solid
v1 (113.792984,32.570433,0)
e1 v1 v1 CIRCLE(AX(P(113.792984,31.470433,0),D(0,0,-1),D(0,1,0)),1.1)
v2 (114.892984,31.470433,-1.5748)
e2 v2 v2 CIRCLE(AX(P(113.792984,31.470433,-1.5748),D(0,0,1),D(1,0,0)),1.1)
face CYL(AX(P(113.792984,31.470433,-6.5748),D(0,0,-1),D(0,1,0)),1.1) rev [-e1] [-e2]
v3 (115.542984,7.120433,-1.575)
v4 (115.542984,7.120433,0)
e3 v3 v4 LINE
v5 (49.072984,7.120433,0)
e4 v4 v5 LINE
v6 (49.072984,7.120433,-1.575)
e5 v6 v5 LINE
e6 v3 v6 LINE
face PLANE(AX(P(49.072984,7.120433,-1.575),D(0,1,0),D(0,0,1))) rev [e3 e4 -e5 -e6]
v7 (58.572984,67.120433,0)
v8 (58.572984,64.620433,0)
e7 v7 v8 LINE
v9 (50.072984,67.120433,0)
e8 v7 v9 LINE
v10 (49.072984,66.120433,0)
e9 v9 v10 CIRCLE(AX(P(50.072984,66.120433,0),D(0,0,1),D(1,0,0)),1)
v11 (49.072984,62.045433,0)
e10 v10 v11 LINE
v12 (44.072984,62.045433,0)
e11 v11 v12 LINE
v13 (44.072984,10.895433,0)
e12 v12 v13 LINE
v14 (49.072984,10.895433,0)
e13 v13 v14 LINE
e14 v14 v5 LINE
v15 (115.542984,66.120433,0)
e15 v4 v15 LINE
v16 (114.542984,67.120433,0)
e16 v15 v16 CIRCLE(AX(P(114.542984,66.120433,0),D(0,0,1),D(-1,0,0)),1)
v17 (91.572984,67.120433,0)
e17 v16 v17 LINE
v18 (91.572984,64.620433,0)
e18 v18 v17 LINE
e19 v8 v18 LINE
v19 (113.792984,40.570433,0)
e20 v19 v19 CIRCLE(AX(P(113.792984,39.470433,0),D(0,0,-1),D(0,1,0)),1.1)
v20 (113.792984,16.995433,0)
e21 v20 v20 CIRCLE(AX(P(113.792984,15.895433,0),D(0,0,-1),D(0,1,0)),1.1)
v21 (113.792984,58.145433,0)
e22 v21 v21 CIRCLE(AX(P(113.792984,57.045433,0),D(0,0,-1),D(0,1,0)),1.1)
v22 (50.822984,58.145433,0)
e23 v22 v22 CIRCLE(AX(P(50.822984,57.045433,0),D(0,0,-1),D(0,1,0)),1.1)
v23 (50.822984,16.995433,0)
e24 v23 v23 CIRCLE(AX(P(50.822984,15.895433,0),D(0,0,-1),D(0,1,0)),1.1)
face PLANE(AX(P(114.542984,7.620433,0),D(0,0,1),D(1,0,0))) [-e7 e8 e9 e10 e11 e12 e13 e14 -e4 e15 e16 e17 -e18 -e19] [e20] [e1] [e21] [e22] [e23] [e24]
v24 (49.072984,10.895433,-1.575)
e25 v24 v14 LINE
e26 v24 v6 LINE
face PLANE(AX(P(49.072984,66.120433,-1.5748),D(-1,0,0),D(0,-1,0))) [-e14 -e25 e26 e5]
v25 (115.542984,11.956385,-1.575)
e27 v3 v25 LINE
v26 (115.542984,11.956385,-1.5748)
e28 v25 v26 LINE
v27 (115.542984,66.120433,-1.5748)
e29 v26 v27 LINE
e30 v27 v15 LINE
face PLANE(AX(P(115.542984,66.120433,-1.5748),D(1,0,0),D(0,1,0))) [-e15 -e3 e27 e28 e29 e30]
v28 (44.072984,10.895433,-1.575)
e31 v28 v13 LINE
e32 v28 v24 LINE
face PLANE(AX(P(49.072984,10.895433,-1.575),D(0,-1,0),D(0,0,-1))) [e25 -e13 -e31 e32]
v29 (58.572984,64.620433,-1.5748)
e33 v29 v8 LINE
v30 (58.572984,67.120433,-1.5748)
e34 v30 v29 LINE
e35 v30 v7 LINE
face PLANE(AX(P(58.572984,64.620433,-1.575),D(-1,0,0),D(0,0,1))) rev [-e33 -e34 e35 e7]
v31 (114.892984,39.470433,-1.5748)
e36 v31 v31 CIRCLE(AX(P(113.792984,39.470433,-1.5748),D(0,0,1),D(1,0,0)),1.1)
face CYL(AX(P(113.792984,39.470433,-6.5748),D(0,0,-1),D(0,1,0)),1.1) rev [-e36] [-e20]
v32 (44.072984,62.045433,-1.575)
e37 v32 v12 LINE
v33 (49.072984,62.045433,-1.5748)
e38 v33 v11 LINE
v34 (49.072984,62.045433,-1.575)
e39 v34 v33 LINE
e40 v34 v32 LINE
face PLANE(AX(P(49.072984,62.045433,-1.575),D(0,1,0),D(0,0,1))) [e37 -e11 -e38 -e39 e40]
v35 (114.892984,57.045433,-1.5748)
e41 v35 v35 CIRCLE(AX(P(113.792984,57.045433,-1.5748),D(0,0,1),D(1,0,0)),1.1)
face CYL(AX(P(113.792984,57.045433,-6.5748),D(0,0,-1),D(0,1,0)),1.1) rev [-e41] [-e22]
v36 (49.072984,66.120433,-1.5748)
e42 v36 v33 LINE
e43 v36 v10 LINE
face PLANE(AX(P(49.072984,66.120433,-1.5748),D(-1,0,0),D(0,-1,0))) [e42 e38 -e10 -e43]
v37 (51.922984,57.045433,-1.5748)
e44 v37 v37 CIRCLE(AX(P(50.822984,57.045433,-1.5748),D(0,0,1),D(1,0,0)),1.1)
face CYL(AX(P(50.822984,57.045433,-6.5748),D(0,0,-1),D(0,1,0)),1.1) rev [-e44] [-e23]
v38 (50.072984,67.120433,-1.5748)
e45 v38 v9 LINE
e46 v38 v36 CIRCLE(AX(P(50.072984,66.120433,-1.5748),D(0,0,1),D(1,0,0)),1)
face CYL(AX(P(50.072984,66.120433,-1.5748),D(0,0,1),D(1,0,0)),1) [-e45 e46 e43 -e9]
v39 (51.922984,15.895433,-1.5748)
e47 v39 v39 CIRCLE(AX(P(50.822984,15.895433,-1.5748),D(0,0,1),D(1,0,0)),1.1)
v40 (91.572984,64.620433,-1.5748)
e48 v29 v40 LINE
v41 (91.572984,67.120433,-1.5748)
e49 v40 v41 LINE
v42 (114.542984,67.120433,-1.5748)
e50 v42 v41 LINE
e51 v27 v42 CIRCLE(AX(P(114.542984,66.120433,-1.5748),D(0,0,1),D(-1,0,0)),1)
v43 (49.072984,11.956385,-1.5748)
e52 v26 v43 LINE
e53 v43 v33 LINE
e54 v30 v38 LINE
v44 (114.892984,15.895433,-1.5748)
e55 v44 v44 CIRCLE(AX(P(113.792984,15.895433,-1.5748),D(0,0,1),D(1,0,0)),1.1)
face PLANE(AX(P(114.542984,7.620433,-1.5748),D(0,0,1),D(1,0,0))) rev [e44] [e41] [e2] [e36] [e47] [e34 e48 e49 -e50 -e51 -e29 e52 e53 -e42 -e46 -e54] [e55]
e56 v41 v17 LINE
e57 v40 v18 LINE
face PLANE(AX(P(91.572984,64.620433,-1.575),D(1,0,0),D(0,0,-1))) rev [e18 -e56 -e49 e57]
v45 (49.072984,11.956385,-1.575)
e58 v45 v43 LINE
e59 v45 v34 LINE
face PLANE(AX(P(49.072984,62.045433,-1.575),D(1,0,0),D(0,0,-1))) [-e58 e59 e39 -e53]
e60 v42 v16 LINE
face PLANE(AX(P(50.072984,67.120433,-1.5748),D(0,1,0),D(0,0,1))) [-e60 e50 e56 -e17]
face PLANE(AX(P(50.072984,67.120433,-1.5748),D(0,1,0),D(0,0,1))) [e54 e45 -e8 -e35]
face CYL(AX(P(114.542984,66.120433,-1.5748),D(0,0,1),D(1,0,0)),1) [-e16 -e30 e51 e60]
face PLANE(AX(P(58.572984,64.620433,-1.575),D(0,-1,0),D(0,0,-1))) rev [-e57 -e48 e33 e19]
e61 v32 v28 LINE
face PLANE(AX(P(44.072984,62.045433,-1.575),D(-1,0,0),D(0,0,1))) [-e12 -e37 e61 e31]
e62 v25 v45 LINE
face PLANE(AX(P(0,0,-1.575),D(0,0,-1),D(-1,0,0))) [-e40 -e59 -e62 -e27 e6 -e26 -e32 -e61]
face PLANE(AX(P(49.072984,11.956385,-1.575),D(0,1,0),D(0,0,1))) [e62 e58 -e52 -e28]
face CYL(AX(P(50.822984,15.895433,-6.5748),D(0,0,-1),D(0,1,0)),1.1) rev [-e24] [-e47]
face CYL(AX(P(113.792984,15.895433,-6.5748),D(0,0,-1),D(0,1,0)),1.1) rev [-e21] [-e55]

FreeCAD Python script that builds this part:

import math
import FreeCAD as App
import Part
import Sketcher
from FreeCAD import Vector


def add_polygon(sketch, points):
    """Adds a closed chain of lines whose ends are joined by coincident constraints."""
    first, n = sketch.GeometryCount, len(points)
    for a, b in zip(points, points[1:] + points[:1]):
        sketch.addGeometry(Part.LineSegment(App.Vector(*a, 0), App.Vector(*b, 0)), False)
    for i in range(n):
        sketch.addConstraint(Sketcher.Constraint("Coincident", first + i, 2, first + (i + 1) % n, 1))

doc = App.newDocument("Part")
body = doc.addObject("PartDesign::Body", "Body")

sketch1 = body.newObject("Sketcher::SketchObject", "Sketch")
sketch1.AttachmentSupport = (doc.getObject("XY_Plane"), [""])
sketch1.MapMode = "FlatFace"
sketch1.addGeometry(Part.LineSegment(Vector(49.1, 6.6, 0), Vector(114.5, 6.6, 0)), False)
sketch1.addGeometry(Part.ArcOfCircle(Part.Circle(Vector(114.5, 7.6, 0), Vector(0, 0, 1), 1), math.radians(-90), math.radians(0)), False)
sketch1.addGeometry(Part.LineSegment(Vector(115.5, 7.6, 0), Vector(115.5, 66.1, 0)), False)
sketch1.addGeometry(Part.ArcOfCircle(Part.Circle(Vector(114.5, 66.1, 0), Vector(0, 0, 1), 1), math.radians(0), math.radians(90)), False)
sketch1.addGeometry(Part.LineSegment(Vector(114.5, 67.1, 0), Vector(50.1, 67.1, 0)), False)
sketch1.addGeometry(Part.ArcOfCircle(Part.Circle(Vector(50.1, 66.1, 0), Vector(0, 0, 1), 1), math.radians(90), math.radians(180)), False)
sketch1.addGeometry(Part.LineSegment(Vector(49.1, 66.1, 0), Vector(49.1, 6.6, 0)), False)
sketch1.addConstraint(Sketcher.Constraint("Tangent", 0, 2, 1, 1))
sketch1.addConstraint(Sketcher.Constraint("Tangent", 1, 2, 2, 1))
sketch1.addConstraint(Sketcher.Constraint("Tangent", 2, 2, 3, 1))
sketch1.addConstraint(Sketcher.Constraint("Tangent", 3, 2, 4, 1))
sketch1.addConstraint(Sketcher.Constraint("Tangent", 4, 2, 5, 1))
sketch1.addConstraint(Sketcher.Constraint("Tangent", 5, 2, 6, 1))
sketch1.addConstraint(Sketcher.Constraint("Coincident", 6, 2, 0, 1))
sketch1.addConstraint(Sketcher.Constraint("Horizontal", 0))
sketch1.addConstraint(Sketcher.Constraint("Vertical", 2))
sketch1.addConstraint(Sketcher.Constraint("Horizontal", 4))
sketch1.addConstraint(Sketcher.Constraint("Vertical", 6))
sketch1.addConstraint(Sketcher.Constraint("Equal", 1, 3))
sketch1.addConstraint(Sketcher.Constraint("Equal", 3, 5))
sketch1.addConstraint(Sketcher.Constraint("Radius", 1, 1.0))
sketch1.addConstraint(Sketcher.Constraint("DistanceY", 2, 1, 2, 2, 58.5))
sketch1.addConstraint(Sketcher.Constraint("DistanceX", 0, 1, 0, 2, 65.47))
sketch1.addConstraint(Sketcher.Constraint("DistanceX", -1, 1, 1, 3, 114.542984))
sketch1.addConstraint(Sketcher.Constraint("DistanceY", -1, 1, 1, 3, 7.620433))
pad1 = body.newObject("PartDesign::Pad", "Pad")
pad1.Profile = sketch1
pad1.Length = 1.5748
pad1.Reversed = True

sketch2 = body.newObject("Sketcher::SketchObject", "Sketch001")
sketch2.AttachmentSupport = (doc.getObject("XY_Plane"), [""])
sketch2.MapMode = "FlatFace"
add_polygon(sketch2, [(49, 12), (49, 7), (116, 7), (116, 12)])
sketch2.addConstraint(Sketcher.Constraint("Vertical", 0))
sketch2.addConstraint(Sketcher.Constraint("Horizontal", 1))
sketch2.addConstraint(Sketcher.Constraint("Vertical", 2))
sketch2.addConstraint(Sketcher.Constraint("Horizontal", 3))
sketch2.addConstraint(Sketcher.Constraint("DistanceX", 1, 1, 1, 2, 66.47))
sketch2.addConstraint(Sketcher.Constraint("DistanceY", 0, 2, 0, 1, 5.335952))
sketch2.addConstraint(Sketcher.Constraint("DistanceX", -1, 1, 0, 2, 49.072984))
sketch2.addConstraint(Sketcher.Constraint("DistanceY", -1, 1, 0, 2, 6.620433))
pad2 = body.newObject("PartDesign::Pad", "Pad001")
pad2.Profile = sketch2
pad2.Length = 1.575
pad2.Reversed = True

sketch3 = body.newObject("Sketcher::SketchObject", "Sketch002")
sketch3.AttachmentSupport = (doc.getObject("XY_Plane"), [""])
sketch3.MapMode = "FlatFace"
add_polygon(sketch3, [(49.1, 7.1), (49.1, 6.6), (115.5, 6.6), (115.5, 7.1)])
sketch3.addConstraint(Sketcher.Constraint("Vertical", 0))
sketch3.addConstraint(Sketcher.Constraint("Horizontal", 1))
sketch3.addConstraint(Sketcher.Constraint("Vertical", 2))
sketch3.addConstraint(Sketcher.Constraint("Horizontal", 3))
sketch3.addConstraint(Sketcher.Constraint("DistanceY", 0, 2, 0, 1, 0.5))
sketch3.addConstraint(Sketcher.Constraint("DistanceX", 1, 1, 1, 2, 66.47))
sketch3.addConstraint(Sketcher.Constraint("DistanceX", -1, 1, 0, 2, 49.072984))
sketch3.addConstraint(Sketcher.Constraint("DistanceY", -1, 1, 0, 2, 6.620433))
pocket1 = body.newObject("PartDesign::Pocket", "Pocket")
pocket1.Profile = sketch3
pocket1.Type = "ThroughAll"

sketch4 = body.newObject("Sketcher::SketchObject", "Sketch003")
sketch4.AttachmentSupport = (doc.getObject("XY_Plane"), [""])
sketch4.MapMode = "FlatFace"
sketch4.AttachmentOffset = App.Placement(Vector(0, 0, -6.5748), App.Rotation())
sketch4.addGeometry(Part.Circle(Vector(50.8, 15.9, 0), Vector(0, 0, 1), 1.1), False)
sketch4.addGeometry(Part.Circle(Vector(50.8, 57, 0), Vector(0, 0, 1), 1.1), False)
sketch4.addGeometry(Part.Circle(Vector(113.8, 57, 0), Vector(0, 0, 1), 1.1), False)
sketch4.addGeometry(Part.Circle(Vector(113.8, 39.5, 0), Vector(0, 0, 1), 1.1), False)
sketch4.addGeometry(Part.Circle(Vector(113.8, 15.9, 0), Vector(0, 0, 1), 1.1), False)
sketch4.addGeometry(Part.Circle(Vector(113.8, 31.5, 0), Vector(0, 0, 1), 1.1), False)
sketch4.addConstraint(Sketcher.Constraint("Equal", 0, 1))
sketch4.addConstraint(Sketcher.Constraint("Equal", 1, 2))
sketch4.addConstraint(Sketcher.Constraint("Equal", 2, 3))
sketch4.addConstraint(Sketcher.Constraint("Equal", 3, 4))
sketch4.addConstraint(Sketcher.Constraint("Equal", 4, 5))
sketch4.addConstraint(Sketcher.Constraint("Horizontal", 1, 3, 2, 3))
sketch4.addConstraint(Sketcher.Constraint("Horizontal", 0, 3, 4, 3))
sketch4.addConstraint(Sketcher.Constraint("Vertical", 0, 3, 1, 3))
sketch4.addConstraint(Sketcher.Constraint("Vertical", 2, 3, 3, 3))
sketch4.addConstraint(Sketcher.Constraint("Vertical", 3, 3, 4, 3))
sketch4.addConstraint(Sketcher.Constraint("Vertical", 4, 3, 5, 3))
sketch4.addConstraint(Sketcher.Constraint("Diameter", 0, 2.2))
sketch4.addConstraint(Sketcher.Constraint("DistanceY", 5, 3, 3, 3, 8.0))
sketch4.addConstraint(Sketcher.Constraint("DistanceY", 0, 3, 1, 3, 41.15))
sketch4.addConstraint(Sketcher.Constraint("DistanceX", 1, 3, 2, 3, 62.97))
sketch4.addConstraint(Sketcher.Constraint("DistanceY", 3, 3, 2, 3, 17.575))
sketch4.addConstraint(Sketcher.Constraint("DistanceX", -1, 1, 0, 3, 50.822984))
sketch4.addConstraint(Sketcher.Constraint("DistanceY", -1, 1, 0, 3, 15.895433))
doc.recompute()
hole = body.newObject("PartDesign::Hole", "Hole")
hole.Profile = sketch4
hole.ThreadType = "None"
hole.Diameter = 2.2
hole.DepthType = "ThroughAll"
hole.Reversed = True

sketch5 = body.newObject("Sketcher::SketchObject", "Sketch004")
sketch5.AttachmentSupport = (doc.getObject("XY_Plane"), [""])
sketch5.MapMode = "FlatFace"
add_polygon(sketch5, [(44, 62), (44, 11), (49, 11), (49, 62)])
sketch5.addConstraint(Sketcher.Constraint("Vertical", 0))
sketch5.addConstraint(Sketcher.Constraint("Horizontal", 1))
sketch5.addConstraint(Sketcher.Constraint("Vertical", 2))
sketch5.addConstraint(Sketcher.Constraint("Horizontal", 3))
sketch5.addConstraint(Sketcher.Constraint("DistanceX", 1, 1, 1, 2, 5.0))
sketch5.addConstraint(Sketcher.Constraint("DistanceY", 0, 2, 0, 1, 51.15))
sketch5.addConstraint(Sketcher.Constraint("DistanceX", -1, 1, 0, 2, 44.072984))
sketch5.addConstraint(Sketcher.Constraint("DistanceY", -1, 1, 0, 2, 10.895433))
pad3 = body.newObject("PartDesign::Pad", "Pad002")
pad3.Profile = sketch5
pad3.Length = 1.575
pad3.Reversed = True

sketch6 = body.newObject("Sketcher::SketchObject", "Sketch005")
sketch6.AttachmentSupport = (doc.getObject("XY_Plane"), [""])
sketch6.MapMode = "FlatFace"
add_polygon(sketch6, [(58.6, 67.1), (58.6, 64.6), (91.6, 64.6), (91.6, 67.1)])
sketch6.addConstraint(Sketcher.Constraint("Vertical", 0))
sketch6.addConstraint(Sketcher.Constraint("Horizontal", 1))
sketch6.addConstraint(Sketcher.Constraint("Vertical", 2))
sketch6.addConstraint(Sketcher.Constraint("Horizontal", 3))
sketch6.addConstraint(Sketcher.Constraint("DistanceX", 1, 1, 1, 2, 33.0))
sketch6.addConstraint(Sketcher.Constraint("DistanceY", 0, 2, 0, 1, 2.5))
sketch6.addConstraint(Sketcher.Constraint("DistanceX", -1, 1, 0, 2, 58.572984))
sketch6.addConstraint(Sketcher.Constraint("DistanceY", -1, 1, 0, 2, 64.620433))
pocket2 = body.newObject("PartDesign::Pocket", "Pocket001")
pocket2.Profile = sketch6
pocket2.Type = "ThroughAll"

doc.recompute()
